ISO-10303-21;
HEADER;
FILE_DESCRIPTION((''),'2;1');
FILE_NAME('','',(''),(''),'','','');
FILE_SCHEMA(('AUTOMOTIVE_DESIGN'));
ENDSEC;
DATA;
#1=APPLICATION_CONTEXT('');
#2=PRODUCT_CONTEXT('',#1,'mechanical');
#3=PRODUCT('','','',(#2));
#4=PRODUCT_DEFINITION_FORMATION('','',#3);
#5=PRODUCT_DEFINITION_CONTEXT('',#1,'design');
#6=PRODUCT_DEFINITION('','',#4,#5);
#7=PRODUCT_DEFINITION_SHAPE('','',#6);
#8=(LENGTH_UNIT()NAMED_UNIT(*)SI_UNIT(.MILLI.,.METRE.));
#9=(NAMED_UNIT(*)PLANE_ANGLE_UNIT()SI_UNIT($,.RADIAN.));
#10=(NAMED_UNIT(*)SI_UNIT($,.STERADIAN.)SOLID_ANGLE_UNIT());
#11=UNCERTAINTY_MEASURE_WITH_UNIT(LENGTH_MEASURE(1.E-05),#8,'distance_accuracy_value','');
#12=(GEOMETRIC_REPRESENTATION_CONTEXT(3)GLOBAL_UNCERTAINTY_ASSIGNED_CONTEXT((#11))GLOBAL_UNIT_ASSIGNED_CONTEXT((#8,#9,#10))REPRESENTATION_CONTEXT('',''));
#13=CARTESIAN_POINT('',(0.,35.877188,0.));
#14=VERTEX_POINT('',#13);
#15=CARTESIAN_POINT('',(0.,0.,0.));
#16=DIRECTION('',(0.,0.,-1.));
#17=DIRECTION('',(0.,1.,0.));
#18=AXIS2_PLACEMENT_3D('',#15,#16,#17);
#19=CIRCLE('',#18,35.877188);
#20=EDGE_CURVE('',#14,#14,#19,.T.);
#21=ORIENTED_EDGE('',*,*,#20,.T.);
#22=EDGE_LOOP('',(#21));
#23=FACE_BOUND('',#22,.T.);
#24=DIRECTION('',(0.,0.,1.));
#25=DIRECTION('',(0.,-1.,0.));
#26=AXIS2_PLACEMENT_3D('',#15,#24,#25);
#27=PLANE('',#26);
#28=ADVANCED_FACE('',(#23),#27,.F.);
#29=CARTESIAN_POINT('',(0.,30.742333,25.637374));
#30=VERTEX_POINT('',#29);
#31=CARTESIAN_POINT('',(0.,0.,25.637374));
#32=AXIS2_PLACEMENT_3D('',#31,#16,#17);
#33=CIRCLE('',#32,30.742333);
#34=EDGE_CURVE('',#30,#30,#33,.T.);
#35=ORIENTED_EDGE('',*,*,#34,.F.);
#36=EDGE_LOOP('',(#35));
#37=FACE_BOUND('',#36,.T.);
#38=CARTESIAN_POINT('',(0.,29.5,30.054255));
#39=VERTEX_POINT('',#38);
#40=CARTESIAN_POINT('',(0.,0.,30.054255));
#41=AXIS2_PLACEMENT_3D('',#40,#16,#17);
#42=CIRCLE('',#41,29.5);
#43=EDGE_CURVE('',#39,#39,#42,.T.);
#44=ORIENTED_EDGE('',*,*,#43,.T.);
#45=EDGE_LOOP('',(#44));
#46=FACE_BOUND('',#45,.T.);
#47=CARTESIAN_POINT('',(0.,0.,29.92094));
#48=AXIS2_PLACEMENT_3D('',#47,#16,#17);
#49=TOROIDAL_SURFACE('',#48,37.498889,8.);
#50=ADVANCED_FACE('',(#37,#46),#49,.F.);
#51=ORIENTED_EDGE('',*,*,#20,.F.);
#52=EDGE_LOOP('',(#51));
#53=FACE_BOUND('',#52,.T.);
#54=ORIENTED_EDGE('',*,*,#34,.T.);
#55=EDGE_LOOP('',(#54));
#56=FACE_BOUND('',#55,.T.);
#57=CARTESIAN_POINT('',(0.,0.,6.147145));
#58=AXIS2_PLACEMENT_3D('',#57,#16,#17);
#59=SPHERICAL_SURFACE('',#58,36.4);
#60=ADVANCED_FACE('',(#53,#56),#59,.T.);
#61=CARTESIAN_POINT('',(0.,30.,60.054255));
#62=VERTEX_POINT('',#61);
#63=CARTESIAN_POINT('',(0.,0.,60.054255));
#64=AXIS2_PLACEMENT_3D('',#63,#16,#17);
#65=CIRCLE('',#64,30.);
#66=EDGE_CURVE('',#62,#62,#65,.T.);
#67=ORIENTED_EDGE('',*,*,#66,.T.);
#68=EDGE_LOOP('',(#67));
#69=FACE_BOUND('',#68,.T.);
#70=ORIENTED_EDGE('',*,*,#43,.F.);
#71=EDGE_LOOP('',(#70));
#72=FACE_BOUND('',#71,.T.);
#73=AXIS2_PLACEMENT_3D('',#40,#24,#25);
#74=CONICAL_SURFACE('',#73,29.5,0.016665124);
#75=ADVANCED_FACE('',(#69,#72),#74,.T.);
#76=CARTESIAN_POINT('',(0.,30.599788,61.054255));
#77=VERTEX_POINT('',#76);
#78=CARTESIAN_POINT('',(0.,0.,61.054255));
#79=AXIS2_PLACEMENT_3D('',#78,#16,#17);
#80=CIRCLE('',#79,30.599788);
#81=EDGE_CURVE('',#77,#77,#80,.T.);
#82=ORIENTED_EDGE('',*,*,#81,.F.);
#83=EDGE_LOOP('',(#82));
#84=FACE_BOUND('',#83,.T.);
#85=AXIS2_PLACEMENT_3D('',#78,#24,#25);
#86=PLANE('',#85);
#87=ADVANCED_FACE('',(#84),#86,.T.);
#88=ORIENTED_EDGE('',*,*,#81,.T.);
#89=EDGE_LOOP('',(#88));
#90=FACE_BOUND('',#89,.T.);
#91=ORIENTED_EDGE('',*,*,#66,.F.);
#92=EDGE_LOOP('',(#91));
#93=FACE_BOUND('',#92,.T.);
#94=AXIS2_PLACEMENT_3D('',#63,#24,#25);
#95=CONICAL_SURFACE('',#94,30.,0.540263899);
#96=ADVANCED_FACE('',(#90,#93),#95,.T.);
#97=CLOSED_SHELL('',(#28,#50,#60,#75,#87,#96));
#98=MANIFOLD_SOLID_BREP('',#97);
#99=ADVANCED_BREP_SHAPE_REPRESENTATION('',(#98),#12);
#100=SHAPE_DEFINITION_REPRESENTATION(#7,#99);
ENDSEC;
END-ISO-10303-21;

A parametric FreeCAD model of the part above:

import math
import FreeCAD as App
import Part
import Sketcher
Q = App.Units.Quantity

doc = App.newDocument("Part")
body = doc.addObject("PartDesign::Body", "Body")

# Sketch on YZ plane
sketch1 = doc.addObject("Sketcher::SketchObject", "Sketch")
body.addObject(sketch1)
sketch1.AttachmentSupport = (doc.YZ_Plane, [""])
sketch1.MapMode = "FlatFace"
sketch1.addGeometry(Part.LineSegment(App.Vector(0, 61.1, 0), App.Vector(0, 0, 0)), False)
sketch1.addGeometry(Part.LineSegment(App.Vector(0, 0, 0), App.Vector(35.9, 0, 0)), False)
sketch1.addGeometry(Part.ArcOfCircle(Part.Circle(App.Vector(0, 6.1, 0), App.Vector(0, 0, 1), 36.4), math.radians(-10), math.radians(22)), False)
sketch1.addGeometry(Part.ArcOfCircle(Part.Circle(App.Vector(0, 6.1, 0), App.Vector(0, 0, 1), 36.4), math.radians(22.44), math.radians(32.37)), False)
sketch1.addGeometry(Part.ArcOfCircle(Part.Circle(App.Vector(37.5, 29.9, 0), App.Vector(0, 0, 1), 8), math.radians(179), math.radians(212)), False)
sketch1.addGeometry(Part.LineSegment(App.Vector(29.5, 30.1, 0), App.Vector(30, 60.1, 0)), False)
sketch1.addGeometry(Part.LineSegment(App.Vector(30, 60.1, 0), App.Vector(30.6, 61.1, 0)), False)
sketch1.addGeometry(Part.LineSegment(App.Vector(30.6, 61.1, 0), App.Vector(0, 61.1, 0)), False)
sketch1.addConstraint(Sketcher.Constraint("Coincident", 0, 2, 1, 1))
sketch1.addConstraint(Sketcher.Constraint("Coincident", 1, 2, 2, 1))
sketch1.addConstraint(Sketcher.Constraint("Tangent", 2, 2, 3, 1))
sketch1.addConstraint(Sketcher.Constraint("Tangent", 3, 2, 4, 2))
sketch1.addConstraint(Sketcher.Constraint("Tangent", 4, 1, 5, 1))
sketch1.addConstraint(Sketcher.Constraint("Coincident", 5, 2, 6, 1))
sketch1.addConstraint(Sketcher.Constraint("Coincident", 6, 2, 7, 1))
sketch1.addConstraint(Sketcher.Constraint("Coincident", 7, 2, 0, 1))
sketch1.addConstraint(Sketcher.Constraint("Vertical", 0))
sketch1.addConstraint(Sketcher.Constraint("Horizontal", 1))
sketch1.addConstraint(Sketcher.Constraint("Horizontal", 7))
sketch1.addConstraint(Sketcher.Constraint("Coincident", 0, 2, -1, 1))
sketch1.addConstraint(Sketcher.Constraint("Equal", 2, 3))
sketch1.addConstraint(Sketcher.Constraint("PointOnObject", 2, 3, -2))
sketch1.addConstraint(Sketcher.Constraint("Radius", 4, Q("8 mm")))
sketch1.addConstraint(Sketcher.Constraint("Radius", 2, Q("36.4 mm")))
sketch1.addConstraint(Sketcher.Constraint("DistanceX", -1, 1, 5, 2, Q("30 mm")))
sketch1.addConstraint(Sketcher.Constraint("DistanceY", 4, 1, 5, 2, Q("30 mm")))
sketch1.addConstraint(Sketcher.Constraint("DistanceY", 5, 2, 6, 2, Q("1 mm")))
sketch1.addConstraint(Sketcher.Constraint("DistanceX", -1, 1, 4, 1, Q("29.5 mm")))
sketch1.addConstraint(Sketcher.Constraint("DistanceX", 7, 2, 7, 1, Q("30.599788 mm")))
sketch1.addConstraint(Sketcher.Constraint("DistanceX", 1, 2, 4, 3, Q("1.621701 mm")))
sketch1.addConstraint(Sketcher.Constraint("DistanceY", 3, 3, 2, 2, Q("13.895518 mm")))
revolution = doc.addObject("PartDesign::Revolution", "Revolution")
body.addObject(revolution)
revolution.Profile = sketch1
revolution.ReferenceAxis = (sketch1, ["V_Axis"])
revolution.Angle = 360

doc.recompute()
